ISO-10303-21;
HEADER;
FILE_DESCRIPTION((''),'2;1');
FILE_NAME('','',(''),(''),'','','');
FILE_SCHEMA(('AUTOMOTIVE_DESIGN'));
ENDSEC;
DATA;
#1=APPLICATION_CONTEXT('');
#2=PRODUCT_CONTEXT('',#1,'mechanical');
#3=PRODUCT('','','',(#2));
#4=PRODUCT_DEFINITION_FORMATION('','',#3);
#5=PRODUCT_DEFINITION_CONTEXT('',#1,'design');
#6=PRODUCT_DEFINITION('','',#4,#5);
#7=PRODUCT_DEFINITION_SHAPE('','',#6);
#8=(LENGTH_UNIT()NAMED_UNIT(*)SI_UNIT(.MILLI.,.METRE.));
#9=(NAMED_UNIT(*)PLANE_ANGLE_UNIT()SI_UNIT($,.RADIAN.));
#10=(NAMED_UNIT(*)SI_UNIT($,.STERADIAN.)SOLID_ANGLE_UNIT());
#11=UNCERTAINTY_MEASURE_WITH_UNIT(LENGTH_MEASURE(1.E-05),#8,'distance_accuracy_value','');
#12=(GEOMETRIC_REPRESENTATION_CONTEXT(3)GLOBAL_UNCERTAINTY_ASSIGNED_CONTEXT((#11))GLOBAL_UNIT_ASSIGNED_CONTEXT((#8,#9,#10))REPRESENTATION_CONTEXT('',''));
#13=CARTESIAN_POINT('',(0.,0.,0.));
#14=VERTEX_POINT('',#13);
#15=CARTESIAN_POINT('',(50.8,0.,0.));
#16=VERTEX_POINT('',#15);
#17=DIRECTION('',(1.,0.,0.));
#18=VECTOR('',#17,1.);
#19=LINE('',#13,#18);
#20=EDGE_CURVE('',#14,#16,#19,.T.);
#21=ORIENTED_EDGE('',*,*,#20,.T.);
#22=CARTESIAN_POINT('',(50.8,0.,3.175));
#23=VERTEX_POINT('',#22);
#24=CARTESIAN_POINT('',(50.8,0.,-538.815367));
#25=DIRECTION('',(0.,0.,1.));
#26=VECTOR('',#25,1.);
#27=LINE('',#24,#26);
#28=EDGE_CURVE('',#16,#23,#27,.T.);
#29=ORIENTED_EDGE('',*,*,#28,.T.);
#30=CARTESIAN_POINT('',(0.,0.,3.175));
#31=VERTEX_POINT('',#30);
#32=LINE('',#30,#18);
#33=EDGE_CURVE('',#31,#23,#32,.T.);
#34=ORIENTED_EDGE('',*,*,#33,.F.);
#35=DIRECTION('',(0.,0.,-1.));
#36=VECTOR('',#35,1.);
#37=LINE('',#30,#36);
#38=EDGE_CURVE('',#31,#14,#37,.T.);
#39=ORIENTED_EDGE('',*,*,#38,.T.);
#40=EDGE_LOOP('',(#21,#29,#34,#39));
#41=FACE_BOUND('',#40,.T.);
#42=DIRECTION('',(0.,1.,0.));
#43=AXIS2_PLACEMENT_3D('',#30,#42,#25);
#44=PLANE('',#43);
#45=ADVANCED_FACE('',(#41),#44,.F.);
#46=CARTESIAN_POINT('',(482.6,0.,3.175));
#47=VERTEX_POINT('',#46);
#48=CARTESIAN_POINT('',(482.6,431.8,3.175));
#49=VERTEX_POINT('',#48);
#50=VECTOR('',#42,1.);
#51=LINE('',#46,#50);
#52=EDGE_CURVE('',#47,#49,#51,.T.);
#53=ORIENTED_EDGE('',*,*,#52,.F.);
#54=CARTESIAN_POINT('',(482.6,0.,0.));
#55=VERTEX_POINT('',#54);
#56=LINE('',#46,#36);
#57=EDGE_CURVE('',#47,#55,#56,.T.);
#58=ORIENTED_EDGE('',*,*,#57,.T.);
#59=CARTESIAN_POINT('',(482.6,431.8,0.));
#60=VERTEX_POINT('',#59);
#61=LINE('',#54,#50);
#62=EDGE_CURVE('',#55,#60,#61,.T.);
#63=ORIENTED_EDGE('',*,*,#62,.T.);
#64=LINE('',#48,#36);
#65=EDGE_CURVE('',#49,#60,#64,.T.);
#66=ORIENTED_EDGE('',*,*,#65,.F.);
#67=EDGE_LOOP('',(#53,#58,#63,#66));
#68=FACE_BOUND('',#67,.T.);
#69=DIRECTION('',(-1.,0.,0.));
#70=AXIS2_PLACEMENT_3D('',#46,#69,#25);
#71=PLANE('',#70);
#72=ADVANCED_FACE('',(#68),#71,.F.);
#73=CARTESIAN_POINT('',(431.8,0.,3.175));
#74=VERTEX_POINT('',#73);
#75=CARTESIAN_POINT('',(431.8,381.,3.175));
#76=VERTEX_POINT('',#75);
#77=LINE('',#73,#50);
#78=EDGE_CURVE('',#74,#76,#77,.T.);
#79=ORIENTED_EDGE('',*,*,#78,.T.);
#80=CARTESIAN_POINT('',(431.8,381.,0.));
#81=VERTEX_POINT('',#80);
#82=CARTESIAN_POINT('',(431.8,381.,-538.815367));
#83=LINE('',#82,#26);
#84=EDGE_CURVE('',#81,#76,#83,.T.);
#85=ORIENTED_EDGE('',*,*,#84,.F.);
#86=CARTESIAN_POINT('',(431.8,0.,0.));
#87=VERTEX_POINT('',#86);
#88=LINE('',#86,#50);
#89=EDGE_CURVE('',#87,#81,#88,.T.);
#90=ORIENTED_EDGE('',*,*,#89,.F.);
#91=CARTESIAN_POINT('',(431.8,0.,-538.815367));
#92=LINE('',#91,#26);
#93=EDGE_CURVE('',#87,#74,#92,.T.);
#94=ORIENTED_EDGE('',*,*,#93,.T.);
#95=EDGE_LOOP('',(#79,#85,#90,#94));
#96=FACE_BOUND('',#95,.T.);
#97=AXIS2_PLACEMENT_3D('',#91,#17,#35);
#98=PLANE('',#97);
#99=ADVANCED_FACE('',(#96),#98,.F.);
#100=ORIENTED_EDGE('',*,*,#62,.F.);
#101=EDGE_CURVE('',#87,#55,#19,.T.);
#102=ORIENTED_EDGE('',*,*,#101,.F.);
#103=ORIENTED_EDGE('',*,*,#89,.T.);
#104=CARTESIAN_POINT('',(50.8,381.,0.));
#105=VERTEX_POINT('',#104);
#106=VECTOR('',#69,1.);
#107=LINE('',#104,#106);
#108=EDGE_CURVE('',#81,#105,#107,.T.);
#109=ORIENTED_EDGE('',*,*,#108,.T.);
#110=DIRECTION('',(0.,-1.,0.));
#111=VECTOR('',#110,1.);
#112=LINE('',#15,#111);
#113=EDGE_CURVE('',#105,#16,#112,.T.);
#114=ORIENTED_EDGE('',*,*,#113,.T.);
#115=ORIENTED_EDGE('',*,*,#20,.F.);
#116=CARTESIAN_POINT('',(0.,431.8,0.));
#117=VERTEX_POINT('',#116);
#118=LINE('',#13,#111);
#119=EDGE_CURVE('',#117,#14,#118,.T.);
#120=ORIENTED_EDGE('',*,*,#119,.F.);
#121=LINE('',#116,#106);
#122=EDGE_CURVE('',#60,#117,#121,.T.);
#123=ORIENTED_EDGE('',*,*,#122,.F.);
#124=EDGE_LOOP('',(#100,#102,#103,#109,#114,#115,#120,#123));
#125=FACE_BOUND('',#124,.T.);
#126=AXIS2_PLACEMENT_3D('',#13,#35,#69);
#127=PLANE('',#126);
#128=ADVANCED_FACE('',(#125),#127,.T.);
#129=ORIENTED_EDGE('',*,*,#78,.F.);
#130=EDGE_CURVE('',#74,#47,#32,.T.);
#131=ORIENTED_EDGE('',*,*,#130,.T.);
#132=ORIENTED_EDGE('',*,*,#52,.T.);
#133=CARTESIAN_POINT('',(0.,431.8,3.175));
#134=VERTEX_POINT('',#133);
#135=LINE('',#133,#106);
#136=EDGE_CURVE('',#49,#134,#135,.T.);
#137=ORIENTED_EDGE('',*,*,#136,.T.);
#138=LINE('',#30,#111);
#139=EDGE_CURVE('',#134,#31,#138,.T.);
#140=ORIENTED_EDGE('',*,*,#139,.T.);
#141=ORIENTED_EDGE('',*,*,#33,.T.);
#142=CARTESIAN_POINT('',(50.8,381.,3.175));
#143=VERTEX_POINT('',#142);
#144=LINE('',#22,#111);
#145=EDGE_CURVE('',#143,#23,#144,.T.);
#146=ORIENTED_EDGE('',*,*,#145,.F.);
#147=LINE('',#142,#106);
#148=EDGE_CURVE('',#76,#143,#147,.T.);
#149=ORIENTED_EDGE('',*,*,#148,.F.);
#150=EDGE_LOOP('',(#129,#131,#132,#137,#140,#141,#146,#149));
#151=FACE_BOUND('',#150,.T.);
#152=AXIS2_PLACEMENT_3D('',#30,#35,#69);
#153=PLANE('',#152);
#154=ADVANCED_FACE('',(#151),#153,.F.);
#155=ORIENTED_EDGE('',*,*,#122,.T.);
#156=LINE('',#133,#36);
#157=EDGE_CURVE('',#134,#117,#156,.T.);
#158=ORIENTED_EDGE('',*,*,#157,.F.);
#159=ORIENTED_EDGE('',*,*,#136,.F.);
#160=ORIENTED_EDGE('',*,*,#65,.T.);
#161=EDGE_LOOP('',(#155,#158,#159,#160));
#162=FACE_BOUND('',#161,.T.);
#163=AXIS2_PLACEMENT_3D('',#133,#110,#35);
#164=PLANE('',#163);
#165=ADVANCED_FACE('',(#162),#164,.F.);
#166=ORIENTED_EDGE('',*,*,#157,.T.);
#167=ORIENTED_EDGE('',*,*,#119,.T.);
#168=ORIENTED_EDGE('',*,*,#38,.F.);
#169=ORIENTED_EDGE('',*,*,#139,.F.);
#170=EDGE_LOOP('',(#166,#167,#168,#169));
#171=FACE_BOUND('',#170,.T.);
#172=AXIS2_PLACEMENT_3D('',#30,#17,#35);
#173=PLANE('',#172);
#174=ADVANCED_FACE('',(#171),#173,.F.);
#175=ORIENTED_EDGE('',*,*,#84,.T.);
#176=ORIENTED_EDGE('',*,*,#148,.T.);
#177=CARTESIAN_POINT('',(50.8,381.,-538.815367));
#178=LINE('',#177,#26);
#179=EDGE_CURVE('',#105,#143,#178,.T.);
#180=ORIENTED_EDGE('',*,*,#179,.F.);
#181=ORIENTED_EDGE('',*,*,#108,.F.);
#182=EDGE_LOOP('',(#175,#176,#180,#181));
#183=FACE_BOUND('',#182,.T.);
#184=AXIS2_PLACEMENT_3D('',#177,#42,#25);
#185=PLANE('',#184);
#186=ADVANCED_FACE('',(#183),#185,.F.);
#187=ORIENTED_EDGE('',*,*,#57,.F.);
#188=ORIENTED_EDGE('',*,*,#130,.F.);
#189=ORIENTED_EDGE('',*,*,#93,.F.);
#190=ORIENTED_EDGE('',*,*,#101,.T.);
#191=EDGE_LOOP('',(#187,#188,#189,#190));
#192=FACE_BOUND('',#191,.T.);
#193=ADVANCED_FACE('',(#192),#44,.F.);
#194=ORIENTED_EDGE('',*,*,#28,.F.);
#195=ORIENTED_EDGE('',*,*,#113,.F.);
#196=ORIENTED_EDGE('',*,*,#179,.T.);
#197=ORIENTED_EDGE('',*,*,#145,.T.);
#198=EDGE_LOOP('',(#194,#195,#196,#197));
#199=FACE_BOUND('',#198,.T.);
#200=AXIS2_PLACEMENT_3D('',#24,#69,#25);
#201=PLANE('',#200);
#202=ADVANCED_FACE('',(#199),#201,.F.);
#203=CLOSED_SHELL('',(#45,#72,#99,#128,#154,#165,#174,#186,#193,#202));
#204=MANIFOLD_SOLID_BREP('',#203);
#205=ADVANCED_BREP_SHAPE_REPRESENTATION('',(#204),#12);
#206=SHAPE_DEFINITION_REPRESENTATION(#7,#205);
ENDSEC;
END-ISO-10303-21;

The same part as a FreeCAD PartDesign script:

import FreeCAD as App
import Part
import Sketcher
from FreeCAD import Vector
Q = App.Units.Quantity


def add_polygon(sketch, points):
    """Adds a closed chain of lines whose ends are joined by coincident constraints."""
    first, n = sketch.GeometryCount, len(points)
    for a, b in zip(points, points[1:] + points[:1]):
        sketch.addGeometry(Part.LineSegment(App.Vector(*a, 0), App.Vector(*b, 0)), False)
    for i in range(n):
        sketch.addConstraint(Sketcher.Constraint("Coincident", first + i, 2, first + (i + 1) % n, 1))

doc = App.newDocument("Part")
params = doc.addObject("Spreadsheet::Sheet", "Params")
for row, (alias, value) in enumerate([
    ("sketch1_width", "19 in"),
    ("sketch1_height", "17 in"),
    ("pad1_length", "0.125 in"),
    ("sketch2_width", "15 in"),
    ("pocket1_length", "0.125 in"),
], start=1):
    params.set(f"A{row}", alias)
    params.set(f"B{row}", "=" + value)
    params.setAlias(f"B{row}", alias)

body = doc.addObject("PartDesign::Body", "Body")

# Sketch on XY plane
sketch1 = body.newObject("Sketcher::SketchObject", "Sketch")
sketch1.AttachmentSupport = (doc.getObject("XY_Plane"), [""])
sketch1.MapMode = "FlatFace"
add_polygon(sketch1, [(0, 432), (0, 0), (483, 0), (483, 432)])  # lines 0-3
sketch1.addConstraint([
    Sketcher.Constraint("Vertical", 0),
    Sketcher.Constraint("Horizontal", 1),
    Sketcher.Constraint("Vertical", 2),
    Sketcher.Constraint("Horizontal", 3),
    Sketcher.Constraint("Coincident", 0, 2, -1, 1),
    Sketcher.Constraint("DistanceX", 1, 1, 1, 2, Q("19 in")),
    Sketcher.Constraint("DistanceY", 0, 2, 0, 1, Q("17 in")),
])
sketch1.setExpression("Constraints[9]", "Params.sketch1_width")
sketch1.setExpression("Constraints[10]", "Params.sketch1_height")
pad1 = body.newObject("PartDesign::Pad", "Pad")
pad1.Profile = sketch1
pad1.setExpression("Length", "Params.pad1_length")

# Sketch on XY plane
sketch2 = body.newObject("Sketcher::SketchObject", "Sketch001")
sketch2.AttachmentSupport = (doc.getObject("XY_Plane"), [""])
sketch2.MapMode = "FlatFace"
sketch2.AttachmentOffset = App.Placement(Vector(0, 0, 0.125 * 25.4), App.Rotation())
add_polygon(sketch2, [(51, 381), (51, 0), (432, 0), (432, 381)])  # lines 0-3
sketch2.addConstraint([
    Sketcher.Constraint("Vertical", 0),
    Sketcher.Constraint("Horizontal", 1),
    Sketcher.Constraint("Vertical", 2),
    Sketcher.Constraint("Horizontal", 3),
    Sketcher.Constraint("PointOnObject", 0, 2, -1),
    Sketcher.Constraint("Equal", 3, 0),
    Sketcher.Constraint("DistanceX", 1, 1, 1, 2, Q("15 in")),
    Sketcher.Constraint("DistanceX", -1, 1, 0, 2, Q("2 in")),
])
sketch2.setExpression("Constraints[10]", "Params.sketch2_width")
pocket1 = body.newObject("PartDesign::Pocket", "Pocket")
pocket1.Profile = sketch2
pocket1.setExpression("Length", "Params.pocket1_length")

doc.recompute()
